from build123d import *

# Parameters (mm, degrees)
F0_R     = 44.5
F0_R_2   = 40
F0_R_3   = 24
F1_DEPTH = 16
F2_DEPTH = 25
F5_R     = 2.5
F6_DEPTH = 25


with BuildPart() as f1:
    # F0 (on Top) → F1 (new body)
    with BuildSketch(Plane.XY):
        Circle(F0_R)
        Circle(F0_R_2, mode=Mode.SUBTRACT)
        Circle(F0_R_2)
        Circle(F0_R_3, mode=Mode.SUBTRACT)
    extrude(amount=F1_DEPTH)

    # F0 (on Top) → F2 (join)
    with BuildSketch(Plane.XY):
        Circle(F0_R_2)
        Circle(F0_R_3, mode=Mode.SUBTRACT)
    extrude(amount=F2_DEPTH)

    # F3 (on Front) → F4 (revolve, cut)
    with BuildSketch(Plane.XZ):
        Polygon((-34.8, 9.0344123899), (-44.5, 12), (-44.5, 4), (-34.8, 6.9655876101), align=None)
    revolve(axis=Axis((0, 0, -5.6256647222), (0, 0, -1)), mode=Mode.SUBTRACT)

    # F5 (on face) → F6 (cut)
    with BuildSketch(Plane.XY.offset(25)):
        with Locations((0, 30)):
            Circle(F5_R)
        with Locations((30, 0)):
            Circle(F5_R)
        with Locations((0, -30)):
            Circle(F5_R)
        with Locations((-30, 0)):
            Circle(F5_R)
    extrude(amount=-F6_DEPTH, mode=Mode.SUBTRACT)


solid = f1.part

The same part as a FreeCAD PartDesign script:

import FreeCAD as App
import Part
import Sketcher
Q = App.Units.Quantity


def add_polygon(sketch, points):
    """Adds a closed chain of lines whose ends are joined by coincident constraints."""
    first, n = sketch.GeometryCount, len(points)
    for a, b in zip(points, points[1:] + points[:1]):
        sketch.addGeometry(Part.LineSegment(App.Vector(*a, 0), App.Vector(*b, 0)), False)
    for i in range(n):
        sketch.addConstraint(Sketcher.Constraint("Coincident", first + i, 2, first + (i + 1) % n, 1))

doc = App.newDocument("Part")
params = doc.addObject("Spreadsheet::Sheet", "Params")
for row, (alias, value) in enumerate([
    ("sketch1_diameter", "89 mm"),
    ("sketch1_diameter2", "48 mm"),
    ("pad1_length", "16 mm"),
    ("sketch2_diameter", "80 mm"),
    ("sketch2_diameter2", "48 mm"),
    ("pad2_length", "25 mm"),
    ("sketch3_height", "8 mm"),
    ("groove_angle", "360 deg"),
    ("sketch4_diameter", "5 mm"),
    ("pocket1_length", "25 mm"),
], start=1):
    params.set(f"A{row}", alias)
    params.set(f"B{row}", "=" + value)
    params.setAlias(f"B{row}", alias)

body = doc.addObject("PartDesign::Body", "Body")

# Sketch on XY plane
sketch1 = body.newObject("Sketcher::SketchObject", "Sketch")
sketch1.AttachmentSupport = (doc.getObject("XY_Plane"), [""])
sketch1.MapMode = "FlatFace"
sketch1.addGeometry(Part.Circle(App.Vector(0, 0, 0), App.Vector(0, 0, 1), 44), False)
sketch1.addGeometry(Part.Circle(App.Vector(0, 0, 0), App.Vector(0, 0, 1), 24), False)
sketch1.addConstraint(Sketcher.Constraint("Coincident", 0, 3, -1, 1))
sketch1.addConstraint(Sketcher.Constraint("Coincident", 1, 3, -1, 1))
sketch1.addConstraint(Sketcher.Constraint("Diameter", 0, Q("89 mm")))
sketch1.addConstraint(Sketcher.Constraint("Diameter", 1, Q("48 mm")))
sketch1.setExpression("Constraints[2]", "Params.sketch1_diameter")
sketch1.setExpression("Constraints[3]", "Params.sketch1_diameter2")
pad1 = body.newObject("PartDesign::Pad", "Pad")
pad1.Profile = sketch1
pad1.setExpression("Length", "Params.pad1_length")

# Sketch on XY plane
sketch2 = body.newObject("Sketcher::SketchObject", "Sketch001")
sketch2.AttachmentSupport = (doc.getObject("XY_Plane"), [""])
sketch2.MapMode = "FlatFace"
sketch2.addGeometry(Part.Circle(App.Vector(0, 0, 0), App.Vector(0, 0, 1), 40), False)
sketch2.addGeometry(Part.Circle(App.Vector(0, 0, 0), App.Vector(0, 0, 1), 24), False)
sketch2.addConstraint(Sketcher.Constraint("Coincident", 0, 3, -1, 1))
sketch2.addConstraint(Sketcher.Constraint("Coincident", 1, 3, -1, 1))
sketch2.addConstraint(Sketcher.Constraint("Diameter", 0, Q("80 mm")))
sketch2.addConstraint(Sketcher.Constraint("Diameter", 1, Q("48 mm")))
sketch2.setExpression("Constraints[2]", "Params.sketch2_diameter")
sketch2.setExpression("Constraints[3]", "Params.sketch2_diameter2")
pad2 = body.newObject("PartDesign::Pad", "Pad001")
pad2.Profile = sketch2
pad2.setExpression("Length", "Params.pad2_length")

# Sketch on XZ plane
sketch3 = body.newObject("Sketcher::SketchObject", "Sketch002")
sketch3.AttachmentSupport = (doc.getObject("XZ_Plane"), [""])
sketch3.MapMode = "FlatFace"
add_polygon(sketch3, [(-34.8, 9), (-44.5, 12), (-44.5, 4), (-34.8, 7)])  # lines 0-3
sketch3.addConstraint(Sketcher.Constraint("Vertical", 1))
sketch3.addConstraint(Sketcher.Constraint("Vertical", 3))
sketch3.addConstraint(Sketcher.Constraint("Equal", 0, 2))
sketch3.addConstraint(Sketcher.Constraint("DistanceY", 1, 2, 1, 1, Q("8 mm")))
sketch3.addConstraint(Sketcher.Constraint("Angle", 0, Q("163 deg")))
sketch3.addConstraint(Sketcher.Constraint("DistanceY", -1, 1, 0, 2, Q("12 mm")))
sketch3.addConstraint(Sketcher.Constraint("DistanceX", 0, 2, -1, 1, Q("44.5 mm")))
sketch3.addConstraint(Sketcher.Constraint("DistanceX", 2, 2, -1, 1, Q("34.8 mm")))
sketch3.setExpression("Constraints[7]", "Params.sketch3_height")
groove = body.newObject("PartDesign::Groove", "Groove")
groove.Profile = sketch3
groove.ReferenceAxis = (sketch3, ["V_Axis"])
groove.setExpression("Angle", "Params.groove_angle")

# Sketch on XY plane
sketch4 = body.newObject("Sketcher::SketchObject", "Sketch003")
sketch4.AttachmentSupport = (doc.getObject("XY_Plane"), [""])
sketch4.MapMode = "FlatFace"
sketch4.AttachmentOffset = App.Placement(App.Vector(0, 0, 25), App.Rotation())
sketch4.addGeometry(Part.Circle(App.Vector(0, 30, 0), App.Vector(0, 0, 1), 2.5), False)
sketch4.addGeometry(Part.Circle(App.Vector(30, 0, 0), App.Vector(0, 0, 1), 2.5), False)
sketch4.addGeometry(Part.Circle(App.Vector(0, -30, 0), App.Vector(0, 0, 1), 2.5), False)
sketch4.addGeometry(Part.Circle(App.Vector(-30, 0, 0), App.Vector(0, 0, 1), 2.5), False)
sketch4.addConstraint(Sketcher.Constraint("Equal", 0, 1))
sketch4.addConstraint(Sketcher.Constraint("Equal", 1, 2))
sketch4.addConstraint(Sketcher.Constraint("Equal", 2, 3))
sketch4.addConstraint(Sketcher.Constraint("Symmetric", 0, 3, 2, 3, -1, 1))
sketch4.addConstraint(Sketcher.Constraint("Symmetric", 1, 3, 3, 3, -1, 1))
sketch4.addConstraint(Sketcher.Constraint("PointOnObject", 0, 3, -2))
sketch4.addConstraint(Sketcher.Constraint("PointOnObject", 1, 3, -1))
sketch4.addConstraint(Sketcher.Constraint("Diameter", 0, Q("5 mm")))
sketch4.addConstraint(Sketcher.Constraint("DistanceY", -1, 1, 0, 3, Q("30 mm")))
sketch4.addConstraint(Sketcher.Constraint("DistanceX", -1, 1, 1, 3, Q("30 mm")))
sketch4.setExpression("Constraints[7]", "Params.sketch4_diameter")
pocket1 = body.newObject("PartDesign::Pocket", "Pocket")
pocket1.Profile = sketch4
pocket1.setExpression("Length", "Params.pocket1_length")

doc.recompute()
